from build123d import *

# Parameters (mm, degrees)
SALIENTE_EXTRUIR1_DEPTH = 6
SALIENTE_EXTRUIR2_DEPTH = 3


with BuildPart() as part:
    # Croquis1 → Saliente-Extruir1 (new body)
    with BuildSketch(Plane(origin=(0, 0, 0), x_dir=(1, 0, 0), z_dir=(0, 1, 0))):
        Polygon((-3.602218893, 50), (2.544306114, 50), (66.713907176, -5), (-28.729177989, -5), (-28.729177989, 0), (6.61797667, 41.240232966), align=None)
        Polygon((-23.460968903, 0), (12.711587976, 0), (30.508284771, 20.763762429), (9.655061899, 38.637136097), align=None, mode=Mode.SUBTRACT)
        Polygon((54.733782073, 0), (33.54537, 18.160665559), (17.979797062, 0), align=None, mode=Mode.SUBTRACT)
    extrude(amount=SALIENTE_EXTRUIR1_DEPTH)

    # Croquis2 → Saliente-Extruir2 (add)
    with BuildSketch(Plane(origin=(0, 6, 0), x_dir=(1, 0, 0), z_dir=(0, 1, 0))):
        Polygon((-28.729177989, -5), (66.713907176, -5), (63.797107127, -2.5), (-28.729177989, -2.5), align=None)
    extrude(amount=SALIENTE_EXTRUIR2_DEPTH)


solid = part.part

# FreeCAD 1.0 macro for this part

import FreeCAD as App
import Part
import Sketcher
from FreeCAD import Vector
Q = App.Units.Quantity


def add_polygon(sketch, points):
    """Adds a closed chain of lines whose ends are joined by coincident constraints."""
    first, n = sketch.GeometryCount, len(points)
    for a, b in zip(points, points[1:] + points[:1]):
        sketch.addGeometry(Part.LineSegment(App.Vector(*a, 0), App.Vector(*b, 0)), False)
    for i in range(n):
        sketch.addConstraint(Sketcher.Constraint("Coincident", first + i, 2, first + (i + 1) % n, 1))

doc = App.newDocument("Part")
params = doc.addObject("Spreadsheet::Sheet", "Params")
for row, (alias, value) in enumerate([
    ("sketch1_height", "5 mm"),
    ("pad1_length", "6 mm"),
    ("sketch2_height", "2.5 mm"),
    ("pad2_length", "3 mm"),
], start=1):
    params.set(f"A{row}", alias)
    params.set(f"B{row}", "=" + value)
    params.setAlias(f"B{row}", alias)

body = doc.addObject("PartDesign::Body", "Body")

# Sketch on XZ plane
sketch1 = body.newObject("Sketcher::SketchObject", "Sketch")
sketch1.AttachmentSupport = (doc.getObject("XZ_Plane"), [""])
sketch1.MapMode = "FlatFace"
add_polygon(sketch1, [(3, -50), (-4, -50), (7, -41), (-29, 0), (-29, 5), (67, 5)])  # lines 0-5
add_polygon(sketch1, [(55, 0), (18, 0), (34, -18)])  # lines 6-8
add_polygon(sketch1, [(-23, 0), (10, -39), (31, -21), (13, 0)])  # lines 9-12
sketch1.addConstraint([
    Sketcher.Constraint("Horizontal", 0),
    Sketcher.Constraint("Vertical", 3),
    Sketcher.Constraint("Horizontal", 4),
    Sketcher.Constraint("Horizontal", 6),
    Sketcher.Constraint("Horizontal", 12),
    Sketcher.Constraint("PointOnObject", 2, 2, -1),
    Sketcher.Constraint("PointOnObject", 6, 2, -1),
    Sketcher.Constraint("PointOnObject", 11, 2, -1),
    Sketcher.Constraint("Perpendicular", 1, 2),
    Sketcher.Constraint("Perpendicular", 2, 5),
    Sketcher.Constraint("Perpendicular", 5, 7),
    Sketcher.Constraint("Perpendicular", 7, 8),
    Sketcher.Constraint("Perpendicular", 8, 9),
    Sketcher.Constraint("Perpendicular", 9, 10),
    Sketcher.Constraint("Perpendicular", 10, 11),
    Sketcher.Constraint("DistanceY", 3, 1, 3, 2, Q("5 mm")),
    Sketcher.Constraint("DistanceY", 0, 2, -1, 1, Q("50 mm")),
    Sketcher.Constraint("Angle", 1, Q("40.6 deg")),
    Sketcher.Constraint("Distance", 1, Q("13.460532 mm")),
    Sketcher.Constraint("Distance", 11, Q("27.34696 mm")),
    Sketcher.Constraint("DistanceX", 0, 2, 0, 1, Q("6.146525 mm")),
    Sketcher.Constraint("DistanceX", 6, 2, 6, 1, Q("36.753985 mm")),
    Sketcher.Constraint("DistanceX", 12, 2, 12, 1, Q("36.172557 mm")),
    Sketcher.Constraint("DistanceX", 0, 2, -1, 1, Q("3.602219 mm")),
    Sketcher.Constraint("DistanceX", -1, 1, 7, 2, Q("33.54537 mm")),
    Sketcher.Constraint("DistanceX", -1, 1, 9, 2, Q("9.655062 mm")),
])
sketch1.setExpression("Constraints[28]", "Params.sketch1_height")
pad1 = body.newObject("PartDesign::Pad", "Pad")
pad1.Profile = sketch1
pad1.setExpression("Length", "Params.pad1_length")
pad1.Reversed = True

# Sketch on XZ plane
sketch2 = body.newObject("Sketcher::SketchObject", "Sketch001")
sketch2.AttachmentSupport = (doc.getObject("XZ_Plane"), [""])
sketch2.MapMode = "FlatFace"
sketch2.AttachmentOffset = App.Placement(Vector(0, 0, -6), App.Rotation())
add_polygon(sketch2, [(-28.7, 5), (66.7, 5), (63.8, 2.5), (-28.7, 2.5)])  # lines 0-3
sketch2.addConstraint([
    Sketcher.Constraint("Horizontal", 0),
    Sketcher.Constraint("Horizontal", 2),
    Sketcher.Constraint("Vertical", 3),
    Sketcher.Constraint("DistanceY", 3, 1, 3, 2, Q("2.5 mm")),
    Sketcher.Constraint("DistanceY", -1, 1, 0, 2, Q("5 mm")),
    Sketcher.Constraint("Angle", 1, Q("-139.4 deg")),
    Sketcher.Constraint("DistanceX", 0, 1, 0, 2, Q("95.443085 mm")),
    Sketcher.Constraint("DistanceX", -1, 1, 0, 2, Q("66.713907 mm")),
])
sketch2.setExpression("Constraints[7]", "Params.sketch2_height")
pad2 = body.newObject("PartDesign::Pad", "Pad001")
pad2.Profile = sketch2
pad2.setExpression("Length", "Params.pad2_length")
pad2.Reversed = True

doc.recompute()
